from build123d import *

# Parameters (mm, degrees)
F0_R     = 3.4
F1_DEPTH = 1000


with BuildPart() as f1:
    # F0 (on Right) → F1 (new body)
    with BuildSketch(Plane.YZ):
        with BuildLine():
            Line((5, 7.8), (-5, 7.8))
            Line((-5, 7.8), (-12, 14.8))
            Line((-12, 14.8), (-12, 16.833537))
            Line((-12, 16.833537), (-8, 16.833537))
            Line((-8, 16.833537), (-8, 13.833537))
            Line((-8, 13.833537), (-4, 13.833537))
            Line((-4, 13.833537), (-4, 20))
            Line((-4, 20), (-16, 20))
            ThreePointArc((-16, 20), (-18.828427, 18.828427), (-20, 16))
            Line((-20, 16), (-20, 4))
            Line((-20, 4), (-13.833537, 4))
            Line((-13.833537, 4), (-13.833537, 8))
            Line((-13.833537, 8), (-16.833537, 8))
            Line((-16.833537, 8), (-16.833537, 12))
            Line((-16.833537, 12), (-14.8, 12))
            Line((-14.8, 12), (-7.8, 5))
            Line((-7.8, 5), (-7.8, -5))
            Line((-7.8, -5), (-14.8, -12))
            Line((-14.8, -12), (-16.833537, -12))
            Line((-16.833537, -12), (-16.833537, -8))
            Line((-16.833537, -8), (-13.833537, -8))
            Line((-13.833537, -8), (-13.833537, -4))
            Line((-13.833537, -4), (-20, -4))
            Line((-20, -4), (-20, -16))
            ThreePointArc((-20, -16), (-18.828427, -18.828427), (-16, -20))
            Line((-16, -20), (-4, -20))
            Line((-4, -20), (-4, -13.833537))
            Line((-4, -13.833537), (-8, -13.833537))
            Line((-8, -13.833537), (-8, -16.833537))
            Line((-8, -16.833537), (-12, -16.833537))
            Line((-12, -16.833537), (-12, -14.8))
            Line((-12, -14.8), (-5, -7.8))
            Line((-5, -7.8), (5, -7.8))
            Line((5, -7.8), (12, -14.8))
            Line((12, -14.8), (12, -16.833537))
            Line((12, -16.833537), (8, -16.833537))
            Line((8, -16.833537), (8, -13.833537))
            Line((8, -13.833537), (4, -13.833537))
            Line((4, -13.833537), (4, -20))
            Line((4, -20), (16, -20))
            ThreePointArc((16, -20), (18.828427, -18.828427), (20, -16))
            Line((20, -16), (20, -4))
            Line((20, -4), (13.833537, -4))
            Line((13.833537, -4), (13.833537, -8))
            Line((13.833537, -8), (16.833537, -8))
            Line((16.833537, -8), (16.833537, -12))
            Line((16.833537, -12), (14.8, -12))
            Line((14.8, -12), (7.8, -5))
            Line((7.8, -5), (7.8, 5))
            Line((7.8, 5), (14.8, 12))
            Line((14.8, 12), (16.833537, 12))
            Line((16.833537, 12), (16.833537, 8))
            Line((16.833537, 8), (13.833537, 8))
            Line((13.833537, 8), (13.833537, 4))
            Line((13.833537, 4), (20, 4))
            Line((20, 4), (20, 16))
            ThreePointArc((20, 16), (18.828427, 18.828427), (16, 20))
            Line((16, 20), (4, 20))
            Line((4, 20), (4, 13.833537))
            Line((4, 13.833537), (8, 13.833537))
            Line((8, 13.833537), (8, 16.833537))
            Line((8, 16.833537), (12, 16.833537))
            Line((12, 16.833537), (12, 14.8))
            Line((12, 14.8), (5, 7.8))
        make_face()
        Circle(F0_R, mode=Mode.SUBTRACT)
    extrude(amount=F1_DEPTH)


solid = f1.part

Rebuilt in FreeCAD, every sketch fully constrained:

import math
import FreeCAD as App
import Part
import Sketcher
Q = App.Units.Quantity

doc = App.newDocument("Part")
body = doc.addObject("PartDesign::Body", "Body")

# Sketch on YZ plane
sketch1 = body.newObject("Sketcher::SketchObject", "Sketch")
sketch1.AttachmentSupport = (doc.getObject("YZ_Plane"), [""])
sketch1.MapMode = "FlatFace"
sketch1.addGeometry(Part.LineSegment(App.Vector(5, 7.8, 0), App.Vector(-5, 7.8, 0)), False)
sketch1.addGeometry(Part.LineSegment(App.Vector(-5, 7.8, 0), App.Vector(-12, 14.8, 0)), False)
sketch1.addGeometry(Part.LineSegment(App.Vector(-12, 14.8, 0), App.Vector(-12, 16.8, 0)), False)
sketch1.addGeometry(Part.LineSegment(App.Vector(-12, 16.8, 0), App.Vector(-8, 16.8, 0)), False)
sketch1.addGeometry(Part.LineSegment(App.Vector(-8, 16.8, 0), App.Vector(-8, 13.8, 0)), False)
sketch1.addGeometry(Part.LineSegment(App.Vector(-8, 13.8, 0), App.Vector(-4, 13.8, 0)), False)
sketch1.addGeometry(Part.LineSegment(App.Vector(-4, 13.8, 0), App.Vector(-4, 20, 0)), False)
sketch1.addGeometry(Part.LineSegment(App.Vector(-4, 20, 0), App.Vector(-16, 20, 0)), False)
sketch1.addGeometry(Part.ArcOfCircle(Part.Circle(App.Vector(-16, 16, 0), App.Vector(0, 0, 1), 4), math.radians(90), math.radians(180)), False)
sketch1.addGeometry(Part.LineSegment(App.Vector(-20, 16, 0), App.Vector(-20, 4, 0)), False)
sketch1.addGeometry(Part.LineSegment(App.Vector(-20, 4, 0), App.Vector(-13.8, 4, 0)), False)
sketch1.addGeometry(Part.LineSegment(App.Vector(-13.8, 4, 0), App.Vector(-13.8, 8, 0)), False)
sketch1.addGeometry(Part.LineSegment(App.Vector(-13.8, 8, 0), App.Vector(-16.8, 8, 0)), False)
sketch1.addGeometry(Part.LineSegment(App.Vector(-16.8, 8, 0), App.Vector(-16.8, 12, 0)), False)
sketch1.addGeometry(Part.LineSegment(App.Vector(-16.8, 12, 0), App.Vector(-14.8, 12, 0)), False)
sketch1.addGeometry(Part.LineSegment(App.Vector(-14.8, 12, 0), App.Vector(-7.8, 5, 0)), False)
sketch1.addGeometry(Part.LineSegment(App.Vector(-7.8, 5, 0), App.Vector(-7.8, -5, 0)), False)
sketch1.addGeometry(Part.LineSegment(App.Vector(-7.8, -5, 0), App.Vector(-14.8, -12, 0)), False)
sketch1.addGeometry(Part.LineSegment(App.Vector(-14.8, -12, 0), App.Vector(-16.8, -12, 0)), False)
sketch1.addGeometry(Part.LineSegment(App.Vector(-16.8, -12, 0), App.Vector(-16.8, -8, 0)), False)
sketch1.addGeometry(Part.LineSegment(App.Vector(-16.8, -8, 0), App.Vector(-13.8, -8, 0)), False)
sketch1.addGeometry(Part.LineSegment(App.Vector(-13.8, -8, 0), App.Vector(-13.8, -4, 0)), False)
sketch1.addGeometry(Part.LineSegment(App.Vector(-13.8, -4, 0), App.Vector(-20, -4, 0)), False)
sketch1.addGeometry(Part.LineSegment(App.Vector(-20, -4, 0), App.Vector(-20, -16, 0)), False)
sketch1.addGeometry(Part.ArcOfCircle(Part.Circle(App.Vector(-16, -16, 0), App.Vector(0, 0, 1), 4), math.radians(-180), math.radians(-90)), False)
sketch1.addGeometry(Part.LineSegment(App.Vector(-16, -20, 0), App.Vector(-4, -20, 0)), False)
sketch1.addGeometry(Part.LineSegment(App.Vector(-4, -20, 0), App.Vector(-4, -13.8, 0)), False)
sketch1.addGeometry(Part.LineSegment(App.Vector(-4, -13.8, 0), App.Vector(-8, -13.8, 0)), False)
sketch1.addGeometry(Part.LineSegment(App.Vector(-8, -13.8, 0), App.Vector(-8, -16.8, 0)), False)
sketch1.addGeometry(Part.LineSegment(App.Vector(-8, -16.8, 0), App.Vector(-12, -16.8, 0)), False)
sketch1.addGeometry(Part.LineSegment(App.Vector(-12, -16.8, 0), App.Vector(-12, -14.8, 0)), False)
sketch1.addGeometry(Part.LineSegment(App.Vector(-12, -14.8, 0), App.Vector(-5, -7.8, 0)), False)
sketch1.addGeometry(Part.LineSegment(App.Vector(-5, -7.8, 0), App.Vector(5, -7.8, 0)), False)
sketch1.addGeometry(Part.LineSegment(App.Vector(5, -7.8, 0), App.Vector(12, -14.8, 0)), False)
sketch1.addGeometry(Part.LineSegment(App.Vector(12, -14.8, 0), App.Vector(12, -16.8, 0)), False)
sketch1.addGeometry(Part.LineSegment(App.Vector(12, -16.8, 0), App.Vector(8, -16.8, 0)), False)
sketch1.addGeometry(Part.LineSegment(App.Vector(8, -16.8, 0), App.Vector(8, -13.8, 0)), False)
sketch1.addGeometry(Part.LineSegment(App.Vector(8, -13.8, 0), App.Vector(4, -13.8, 0)), False)
sketch1.addGeometry(Part.LineSegment(App.Vector(4, -13.8, 0), App.Vector(4, -20, 0)), False)
sketch1.addGeometry(Part.LineSegment(App.Vector(4, -20, 0), App.Vector(16, -20, 0)), False)
sketch1.addGeometry(Part.ArcOfCircle(Part.Circle(App.Vector(16, -16, 0), App.Vector(0, 0, 1), 4), math.radians(-90), math.radians(0)), False)
sketch1.addGeometry(Part.LineSegment(App.Vector(20, -16, 0), App.Vector(20, -4, 0)), False)
sketch1.addGeometry(Part.LineSegment(App.Vector(20, -4, 0), App.Vector(13.8, -4, 0)), False)
sketch1.addGeometry(Part.LineSegment(App.Vector(13.8, -4, 0), App.Vector(13.8, -8, 0)), False)
sketch1.addGeometry(Part.LineSegment(App.Vector(13.8, -8, 0), App.Vector(16.8, -8, 0)), False)
sketch1.addGeometry(Part.LineSegment(App.Vector(16.8, -8, 0), App.Vector(16.8, -12, 0)), False)
sketch1.addGeometry(Part.LineSegment(App.Vector(16.8, -12, 0), App.Vector(14.8, -12, 0)), False)
sketch1.addGeometry(Part.LineSegment(App.Vector(14.8, -12, 0), App.Vector(7.8, -5, 0)), False)
sketch1.addGeometry(Part.LineSegment(App.Vector(7.8, -5, 0), App.Vector(7.8, 5, 0)), False)
sketch1.addGeometry(Part.LineSegment(App.Vector(7.8, 5, 0), App.Vector(14.8, 12, 0)), False)
sketch1.addGeometry(Part.LineSegment(App.Vector(14.8, 12, 0), App.Vector(16.8, 12, 0)), False)
sketch1.addGeometry(Part.LineSegment(App.Vector(16.8, 12, 0), App.Vector(16.8, 8, 0)), False)
sketch1.addGeometry(Part.LineSegment(App.Vector(16.8, 8, 0), App.Vector(13.8, 8, 0)), False)
sketch1.addGeometry(Part.LineSegment(App.Vector(13.8, 8, 0), App.Vector(13.8, 4, 0)), False)
sketch1.addGeometry(Part.LineSegment(App.Vector(13.8, 4, 0), App.Vector(20, 4, 0)), False)
sketch1.addGeometry(Part.LineSegment(App.Vector(20, 4, 0), App.Vector(20, 16, 0)), False)
sketch1.addGeometry(Part.ArcOfCircle(Part.Circle(App.Vector(16, 16, 0), App.Vector(0, 0, 1), 4), math.radians(0), math.radians(90)), False)
sketch1.addGeometry(Part.LineSegment(App.Vector(16, 20, 0), App.Vector(4, 20, 0)), False)
sketch1.addGeometry(Part.LineSegment(App.Vector(4, 20, 0), App.Vector(4, 13.8, 0)), False)
sketch1.addGeometry(Part.LineSegment(App.Vector(4, 13.8, 0), App.Vector(8, 13.8, 0)), False)
sketch1.addGeometry(Part.LineSegment(App.Vector(8, 13.8, 0), App.Vector(8, 16.8, 0)), False)
sketch1.addGeometry(Part.LineSegment(App.Vector(8, 16.8, 0), App.Vector(12, 16.8, 0)), False)
sketch1.addGeometry(Part.LineSegment(App.Vector(12, 16.8, 0), App.Vector(12, 14.8, 0)), False)
sketch1.addGeometry(Part.LineSegment(App.Vector(12, 14.8, 0), App.Vector(5, 7.8, 0)), False)
sketch1.addGeometry(Part.Circle(App.Vector(0, 0, 0), App.Vector(0, 0, 1), 3.4), False)
sketch1.addConstraint(Sketcher.Constraint("Coincident", 0, 2, 1, 1))
sketch1.addConstraint(Sketcher.Constraint("Coincident", 1, 2, 2, 1))
sketch1.addConstraint(Sketcher.Constraint("Coincident", 2, 2, 3, 1))
sketch1.addConstraint(Sketcher.Constraint("Coincident", 3, 2, 4, 1))
sketch1.addConstraint(Sketcher.Constraint("Coincident", 4, 2, 5, 1))
sketch1.addConstraint(Sketcher.Constraint("Coincident", 5, 2, 6, 1))
sketch1.addConstraint(Sketcher.Constraint("Coincident", 6, 2, 7, 1))
sketch1.addConstraint(Sketcher.Constraint("Tangent", 7, 2, 8, 1))
sketch1.addConstraint(Sketcher.Constraint("Tangent", 8, 2, 9, 1))
sketch1.addConstraint(Sketcher.Constraint("Coincident", 9, 2, 10, 1))
sketch1.addConstraint(Sketcher.Constraint("Coincident", 10, 2, 11, 1))
sketch1.addConstraint(Sketcher.Constraint("Coincident", 11, 2, 12, 1))
sketch1.addConstraint(Sketcher.Constraint("Coincident", 12, 2, 13, 1))
sketch1.addConstraint(Sketcher.Constraint("Coincident", 13, 2, 14, 1))
sketch1.addConstraint(Sketcher.Constraint("Coincident", 14, 2, 15, 1))
sketch1.addConstraint(Sketcher.Constraint("Coincident", 15, 2, 16, 1))
sketch1.addConstraint(Sketcher.Constraint("Coincident", 16, 2, 17, 1))
sketch1.addConstraint(Sketcher.Constraint("Coincident", 17, 2, 18, 1))
sketch1.addConstraint(Sketcher.Constraint("Coincident", 18, 2, 19, 1))
sketch1.addConstraint(Sketcher.Constraint("Coincident", 19, 2, 20, 1))
sketch1.addConstraint(Sketcher.Constraint("Coincident", 20, 2, 21, 1))
sketch1.addConstraint(Sketcher.Constraint("Coincident", 21, 2, 22, 1))
sketch1.addConstraint(Sketcher.Constraint("Coincident", 22, 2, 23, 1))
sketch1.addConstraint(Sketcher.Constraint("Tangent", 23, 2, 24, 1))
sketch1.addConstraint(Sketcher.Constraint("Tangent", 24, 2, 25, 1))
sketch1.addConstraint(Sketcher.Constraint("Coincident", 25, 2, 26, 1))
sketch1.addConstraint(Sketcher.Constraint("Coincident", 26, 2, 27, 1))
sketch1.addConstraint(Sketcher.Constraint("Coincident", 27, 2, 28, 1))
sketch1.addConstraint(Sketcher.Constraint("Coincident", 28, 2, 29, 1))
sketch1.addConstraint(Sketcher.Constraint("Coincident", 29, 2, 30, 1))
sketch1.addConstraint(Sketcher.Constraint("Coincident", 30, 2, 31, 1))
sketch1.addConstraint(Sketcher.Constraint("Coincident", 31, 2, 32, 1))
sketch1.addConstraint(Sketcher.Constraint("Coincident", 32, 2, 33, 1))
sketch1.addConstraint(Sketcher.Constraint("Coincident", 33, 2, 34, 1))
sketch1.addConstraint(Sketcher.Constraint("Coincident", 34, 2, 35, 1))
sketch1.addConstraint(Sketcher.Constraint("Coincident", 35, 2, 36, 1))
sketch1.addConstraint(Sketcher.Constraint("Coincident", 36, 2, 37, 1))
sketch1.addConstraint(Sketcher.Constraint("Coincident", 37, 2, 38, 1))
sketch1.addConstraint(Sketcher.Constraint("Coincident", 38, 2, 39, 1))
sketch1.addConstraint(Sketcher.Constraint("Tangent", 39, 2, 40, 1))
sketch1.addConstraint(Sketcher.Constraint("Tangent", 40, 2, 41, 1))
sketch1.addConstraint(Sketcher.Constraint("Coincident", 41, 2, 42, 1))
sketch1.addConstraint(Sketcher.Constraint("Coincident", 42, 2, 43, 1))
sketch1.addConstraint(Sketcher.Constraint("Coincident", 43, 2, 44, 1))
sketch1.addConstraint(Sketcher.Constraint("Coincident", 44, 2, 45, 1))
sketch1.addConstraint(Sketcher.Constraint("Coincident", 45, 2, 46, 1))
sketch1.addConstraint(Sketcher.Constraint("Coincident", 46, 2, 47, 1))
sketch1.addConstraint(Sketcher.Constraint("Coincident", 47, 2, 48, 1))
sketch1.addConstraint(Sketcher.Constraint("Coincident", 48, 2, 49, 1))
sketch1.addConstraint(Sketcher.Constraint("Coincident", 49, 2, 50, 1))
sketch1.addConstraint(Sketcher.Constraint("Coincident", 50, 2, 51, 1))
sketch1.addConstraint(Sketcher.Constraint("Coincident", 51, 2, 52, 1))
sketch1.addConstraint(Sketcher.Constraint("Coincident", 52, 2, 53, 1))
sketch1.addConstraint(Sketcher.Constraint("Coincident", 53, 2, 54, 1))
sketch1.addConstraint(Sketcher.Constraint("Coincident", 54, 2, 55, 1))
sketch1.addConstraint(Sketcher.Constraint("Tangent", 55, 2, 56, 1))
sketch1.addConstraint(Sketcher.Constraint("Tangent", 56, 2, 57, 1))
sketch1.addConstraint(Sketcher.Constraint("Coincident", 57, 2, 58, 1))
sketch1.addConstraint(Sketcher.Constraint("Coincident", 58, 2, 59, 1))
sketch1.addConstraint(Sketcher.Constraint("Coincident", 59, 2, 60, 1))
sketch1.addConstraint(Sketcher.Constraint("Coincident", 60, 2, 61, 1))
sketch1.addConstraint(Sketcher.Constraint("Coincident", 61, 2, 62, 1))
sketch1.addConstraint(Sketcher.Constraint("Coincident", 62, 2, 63, 1))
sketch1.addConstraint(Sketcher.Constraint("Coincident", 63, 2, 0, 1))
sketch1.addConstraint(Sketcher.Constraint("Horizontal", 0))
sketch1.addConstraint(Sketcher.Constraint("Vertical", 2))
sketch1.addConstraint(Sketcher.Constraint("Horizontal", 3))
sketch1.addConstraint(Sketcher.Constraint("Vertical", 4))
sketch1.addConstraint(Sketcher.Constraint("Horizontal", 5))
sketch1.addConstraint(Sketcher.Constraint("Vertical", 6))
sketch1.addConstraint(Sketcher.Constraint("Horizontal", 7))
sketch1.addConstraint(Sketcher.Constraint("Vertical", 9))
sketch1.addConstraint(Sketcher.Constraint("Horizontal", 10))
sketch1.addConstraint(Sketcher.Constraint("Vertical", 11))
sketch1.addConstraint(Sketcher.Constraint("Horizontal", 12))
sketch1.addConstraint(Sketcher.Constraint("Vertical", 13))
sketch1.addConstraint(Sketcher.Constraint("Horizontal", 14))
sketch1.addConstraint(Sketcher.Constraint("Vertical", 16))
sketch1.addConstraint(Sketcher.Constraint("Horizontal", 18))
sketch1.addConstraint(Sketcher.Constraint("Vertical", 19))
sketch1.addConstraint(Sketcher.Constraint("Horizontal", 20))
sketch1.addConstraint(Sketcher.Constraint("Vertical", 21))
sketch1.addConstraint(Sketcher.Constraint("Horizontal", 22))
sketch1.addConstraint(Sketcher.Constraint("Vertical", 23))
sketch1.addConstraint(Sketcher.Constraint("Horizontal", 25))
sketch1.addConstraint(Sketcher.Constraint("Vertical", 26))
sketch1.addConstraint(Sketcher.Constraint("Horizontal", 27))
sketch1.addConstraint(Sketcher.Constraint("Vertical", 28))
sketch1.addConstraint(Sketcher.Constraint("Horizontal", 29))
sketch1.addConstraint(Sketcher.Constraint("Vertical", 30))
sketch1.addConstraint(Sketcher.Constraint("Horizontal", 32))
sketch1.addConstraint(Sketcher.Constraint("Vertical", 34))
sketch1.addConstraint(Sketcher.Constraint("Horizontal", 35))
sketch1.addConstraint(Sketcher.Constraint("Vertical", 36))
sketch1.addConstraint(Sketcher.Constraint("Horizontal", 37))
sketch1.addConstraint(Sketcher.Constraint("Vertical", 38))
sketch1.addConstraint(Sketcher.Constraint("Horizontal", 39))
sketch1.addConstraint(Sketcher.Constraint("Vertical", 41))
sketch1.addConstraint(Sketcher.Constraint("Horizontal", 42))
sketch1.addConstraint(Sketcher.Constraint("Vertical", 43))
sketch1.addConstraint(Sketcher.Constraint("Horizontal", 44))
sketch1.addConstraint(Sketcher.Constraint("Vertical", 45))
sketch1.addConstraint(Sketcher.Constraint("Horizontal", 46))
sketch1.addConstraint(Sketcher.Constraint("Vertical", 48))
sketch1.addConstraint(Sketcher.Constraint("Horizontal", 50))
sketch1.addConstraint(Sketcher.Constraint("Vertical", 51))
sketch1.addConstraint(Sketcher.Constraint("Horizontal", 52))
sketch1.addConstraint(Sketcher.Constraint("Vertical", 53))
sketch1.addConstraint(Sketcher.Constraint("Horizontal", 54))
sketch1.addConstraint(Sketcher.Constraint("Vertical", 55))
sketch1.addConstraint(Sketcher.Constraint("Horizontal", 57))
sketch1.addConstraint(Sketcher.Constraint("Vertical", 58))
sketch1.addConstraint(Sketcher.Constraint("Horizontal", 59))
sketch1.addConstraint(Sketcher.Constraint("Vertical", 60))
sketch1.addConstraint(Sketcher.Constraint("Horizontal", 61))
sketch1.addConstraint(Sketcher.Constraint("Vertical", 62))
sketch1.addConstraint(Sketcher.Constraint("Coincident", 64, 3, -1, 1))
sketch1.addConstraint(Sketcher.Constraint("Equal", 8, 24))
sketch1.addConstraint(Sketcher.Constraint("Equal", 24, 40))
sketch1.addConstraint(Sketcher.Constraint("Equal", 40, 56))
sketch1.addConstraint(Sketcher.Constraint("Symmetric", 8, 3, 40, 3, -1, 1))
sketch1.addConstraint(Sketcher.Constraint("Symmetric", 24, 3, 56, 3, -1, 1))
sketch1.addConstraint(Sketcher.Constraint("Symmetric", 0, 2, 32, 2, -1, 1))
sketch1.addConstraint(Sketcher.Constraint("Symmetric", 1, 2, 33, 2, -1, 1))
sketch1.addConstraint(Sketcher.Constraint("Symmetric", 3, 2, 35, 2, -1, 1))
sketch1.addConstraint(Sketcher.Constraint("Symmetric", 5, 2, 37, 2, -1, 1))
sketch1.addConstraint(Sketcher.Constraint("Symmetric", 10, 2, 42, 2, -1, 1))
sketch1.addConstraint(Sketcher.Constraint("Symmetric", 12, 2, 44, 2, -1, 1))
sketch1.addConstraint(Sketcher.Constraint("Symmetric", 14, 2, 46, 2, -1, 1))
sketch1.addConstraint(Sketcher.Constraint("Symmetric", 15, 2, 47, 2, -1, 1))
sketch1.addConstraint(Sketcher.Constraint("Symmetric", 17, 2, 49, 2, -1, 1))
sketch1.addConstraint(Sketcher.Constraint("Symmetric", 19, 2, 51, 2, -1, 1))
sketch1.addConstraint(Sketcher.Constraint("Symmetric", 21, 2, 53, 2, -1, 1))
sketch1.addConstraint(Sketcher.Constraint("Symmetric", 26, 2, 58, 2, -1, 1))
sketch1.addConstraint(Sketcher.Constraint("Symmetric", 28, 2, 60, 2, -1, 1))
sketch1.addConstraint(Sketcher.Constraint("Symmetric", 30, 2, 62, 2, -1, 1))
sketch1.addConstraint(Sketcher.Constraint("Symmetric", 24, 3, 40, 3, -2))
sketch1.addConstraint(Sketcher.Constraint("Symmetric", 30, 2, 33, 2, -2))
sketch1.addConstraint(Sketcher.Constraint("Symmetric", 28, 2, 35, 2, -2))
sketch1.addConstraint(Sketcher.Constraint("Symmetric", 26, 2, 37, 2, -2))
sketch1.addConstraint(Sketcher.Constraint("Symmetric", 21, 2, 42, 2, -2))
sketch1.addConstraint(Sketcher.Constraint("Symmetric", 19, 2, 44, 2, -2))
sketch1.addConstraint(Sketcher.Constraint("Symmetric", 17, 2, 46, 2, -2))
sketch1.addConstraint(Sketcher.Constraint("Parallel", 1, 15))
sketch1.addConstraint(Sketcher.Constraint("Perpendicular", 15, 17))
sketch1.addConstraint(Sketcher.Constraint("Parallel", 17, 31))
sketch1.addConstraint(Sketcher.Constraint("Perpendicular", 47, 49))
sketch1.addConstraint(Sketcher.Constraint("Parallel", 49, 63))
sketch1.addConstraint(Sketcher.Constraint("Horizontal", 16, 2, 47, 2))
sketch1.addConstraint(Sketcher.Constraint("Equal", 3, 5))
sketch1.addConstraint(Sketcher.Constraint("Equal", 50, 2))
sketch1.addConstraint(Sketcher.Constraint("Equal", 52, 4))
sketch1.addConstraint(Sketcher.Constraint("Equal", 54, 6))
sketch1.addConstraint(Sketcher.Constraint("Equal", 57, 9))
sketch1.addConstraint(Sketcher.Constraint("Equal", 61, 11))
sketch1.addConstraint(Sketcher.Constraint("Equal", 11, 13))
sketch1.addConstraint(Sketcher.Constraint("Equal", 32, 16))
sketch1.addConstraint(Sketcher.Constraint("Equal", 1, 15))
sketch1.addConstraint(Sketcher.Constraint("Radius", 8, Q("4 mm")))
sketch1.addConstraint(Sketcher.Constraint("Diameter", 64, Q("6.8 mm")))
sketch1.addConstraint(Sketcher.Constraint("DistanceX", 0, 2, 0, 1, Q("10 mm")))
sketch1.addConstraint(Sketcher.Constraint("DistanceX", 3, 1, 3, 2, Q("4 mm")))
sketch1.addConstraint(Sketcher.Constraint("DistanceX", 7, 2, 7, 1, Q("12 mm")))
sketch1.addConstraint(Sketcher.Constraint("DistanceX", 12, 2, 12, 1, Q("3 mm")))
sketch1.addConstraint(Sketcher.Constraint("DistanceX", 8, 3, -1, 1, Q("16 mm")))
sketch1.addConstraint(Sketcher.Constraint("DistanceY", -1, 1, 0, 2, Q("7.8 mm")))
sketch1.addConstraint(Sketcher.Constraint("DistanceX", 10, 1, 10, 2, Q("6.166463 mm")))
pad1 = body.newObject("PartDesign::Pad", "Pad")
pad1.Profile = sketch1
pad1.Length = 1000

doc.recompute()
